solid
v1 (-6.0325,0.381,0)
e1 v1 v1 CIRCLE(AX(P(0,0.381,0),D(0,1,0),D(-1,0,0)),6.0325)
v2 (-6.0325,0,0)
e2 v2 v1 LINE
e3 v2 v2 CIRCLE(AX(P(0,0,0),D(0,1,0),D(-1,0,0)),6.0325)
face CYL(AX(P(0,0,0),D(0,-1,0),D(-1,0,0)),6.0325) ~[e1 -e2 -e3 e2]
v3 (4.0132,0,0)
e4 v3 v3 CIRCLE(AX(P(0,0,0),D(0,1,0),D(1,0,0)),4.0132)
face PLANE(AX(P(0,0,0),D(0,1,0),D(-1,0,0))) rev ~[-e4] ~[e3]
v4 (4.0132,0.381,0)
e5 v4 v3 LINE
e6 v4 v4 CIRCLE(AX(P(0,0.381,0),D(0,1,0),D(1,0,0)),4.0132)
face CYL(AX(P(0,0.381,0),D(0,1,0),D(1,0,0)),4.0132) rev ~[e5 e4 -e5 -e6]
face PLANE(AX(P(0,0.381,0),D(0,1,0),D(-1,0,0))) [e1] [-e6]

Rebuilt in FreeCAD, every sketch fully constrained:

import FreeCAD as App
import Part
import Sketcher
from FreeCAD import Vector
Q = App.Units.Quantity

doc = App.newDocument("Part")
params = doc.addObject("Spreadsheet::Sheet", "Params")
for row, (alias, value) in enumerate([
    ("sketch1_diameter", "0.475 in"),
    ("pad1_length", "0.015 in"),
    ("sketch2_diameter", "0.316 in"),
], start=1):
    params.set(f"A{row}", alias)
    params.set(f"B{row}", "=" + value)
    params.setAlias(f"B{row}", alias)

body = doc.addObject("PartDesign::Body", "Body")

# Sketch on XZ plane
sketch1 = body.newObject("Sketcher::SketchObject", "Sketch")
sketch1.AttachmentSupport = (doc.getObject("XZ_Plane"), [""])
sketch1.MapMode = "FlatFace"
sketch1.addGeometry(Part.Circle(Vector(0, 0, 0), Vector(0, 0, 1), 6), False)
sketch1.addConstraint(Sketcher.Constraint("Coincident", 0, 3, -1, 1))
sketch1.addConstraint(Sketcher.Constraint("Diameter", 0, Q("0.475 in")))
sketch1.setExpression("Constraints[1]", "Params.sketch1_diameter")
pad1 = body.newObject("PartDesign::Pad", "Pad")
pad1.Profile = sketch1
pad1.setExpression("Length", "Params.pad1_length")
pad1.Reversed = True

# Sketch on XZ plane
sketch2 = body.newObject("Sketcher::SketchObject", "Sketch001")
sketch2.AttachmentSupport = (doc.getObject("XZ_Plane"), [""])
sketch2.MapMode = "FlatFace"
sketch2.AttachmentOffset = App.Placement(Vector(0, 0, -0.015 * 25.4), App.Rotation())
sketch2.addGeometry(Part.Circle(Vector(0, 0, 0), Vector(0, 0, 1), 4), False)
sketch2.addConstraint(Sketcher.Constraint("Coincident", 0, 3, -1, 1))
sketch2.addConstraint(Sketcher.Constraint("Diameter", 0, Q("0.316 in")))
sketch2.setExpression("Constraints[1]", "Params.sketch2_diameter")
pocket1 = body.newObject("PartDesign::Pocket", "Pocket")
pocket1.Profile = sketch2
pocket1.Type = "ThroughAll"
pocket1.Reversed = True

doc.recompute()
